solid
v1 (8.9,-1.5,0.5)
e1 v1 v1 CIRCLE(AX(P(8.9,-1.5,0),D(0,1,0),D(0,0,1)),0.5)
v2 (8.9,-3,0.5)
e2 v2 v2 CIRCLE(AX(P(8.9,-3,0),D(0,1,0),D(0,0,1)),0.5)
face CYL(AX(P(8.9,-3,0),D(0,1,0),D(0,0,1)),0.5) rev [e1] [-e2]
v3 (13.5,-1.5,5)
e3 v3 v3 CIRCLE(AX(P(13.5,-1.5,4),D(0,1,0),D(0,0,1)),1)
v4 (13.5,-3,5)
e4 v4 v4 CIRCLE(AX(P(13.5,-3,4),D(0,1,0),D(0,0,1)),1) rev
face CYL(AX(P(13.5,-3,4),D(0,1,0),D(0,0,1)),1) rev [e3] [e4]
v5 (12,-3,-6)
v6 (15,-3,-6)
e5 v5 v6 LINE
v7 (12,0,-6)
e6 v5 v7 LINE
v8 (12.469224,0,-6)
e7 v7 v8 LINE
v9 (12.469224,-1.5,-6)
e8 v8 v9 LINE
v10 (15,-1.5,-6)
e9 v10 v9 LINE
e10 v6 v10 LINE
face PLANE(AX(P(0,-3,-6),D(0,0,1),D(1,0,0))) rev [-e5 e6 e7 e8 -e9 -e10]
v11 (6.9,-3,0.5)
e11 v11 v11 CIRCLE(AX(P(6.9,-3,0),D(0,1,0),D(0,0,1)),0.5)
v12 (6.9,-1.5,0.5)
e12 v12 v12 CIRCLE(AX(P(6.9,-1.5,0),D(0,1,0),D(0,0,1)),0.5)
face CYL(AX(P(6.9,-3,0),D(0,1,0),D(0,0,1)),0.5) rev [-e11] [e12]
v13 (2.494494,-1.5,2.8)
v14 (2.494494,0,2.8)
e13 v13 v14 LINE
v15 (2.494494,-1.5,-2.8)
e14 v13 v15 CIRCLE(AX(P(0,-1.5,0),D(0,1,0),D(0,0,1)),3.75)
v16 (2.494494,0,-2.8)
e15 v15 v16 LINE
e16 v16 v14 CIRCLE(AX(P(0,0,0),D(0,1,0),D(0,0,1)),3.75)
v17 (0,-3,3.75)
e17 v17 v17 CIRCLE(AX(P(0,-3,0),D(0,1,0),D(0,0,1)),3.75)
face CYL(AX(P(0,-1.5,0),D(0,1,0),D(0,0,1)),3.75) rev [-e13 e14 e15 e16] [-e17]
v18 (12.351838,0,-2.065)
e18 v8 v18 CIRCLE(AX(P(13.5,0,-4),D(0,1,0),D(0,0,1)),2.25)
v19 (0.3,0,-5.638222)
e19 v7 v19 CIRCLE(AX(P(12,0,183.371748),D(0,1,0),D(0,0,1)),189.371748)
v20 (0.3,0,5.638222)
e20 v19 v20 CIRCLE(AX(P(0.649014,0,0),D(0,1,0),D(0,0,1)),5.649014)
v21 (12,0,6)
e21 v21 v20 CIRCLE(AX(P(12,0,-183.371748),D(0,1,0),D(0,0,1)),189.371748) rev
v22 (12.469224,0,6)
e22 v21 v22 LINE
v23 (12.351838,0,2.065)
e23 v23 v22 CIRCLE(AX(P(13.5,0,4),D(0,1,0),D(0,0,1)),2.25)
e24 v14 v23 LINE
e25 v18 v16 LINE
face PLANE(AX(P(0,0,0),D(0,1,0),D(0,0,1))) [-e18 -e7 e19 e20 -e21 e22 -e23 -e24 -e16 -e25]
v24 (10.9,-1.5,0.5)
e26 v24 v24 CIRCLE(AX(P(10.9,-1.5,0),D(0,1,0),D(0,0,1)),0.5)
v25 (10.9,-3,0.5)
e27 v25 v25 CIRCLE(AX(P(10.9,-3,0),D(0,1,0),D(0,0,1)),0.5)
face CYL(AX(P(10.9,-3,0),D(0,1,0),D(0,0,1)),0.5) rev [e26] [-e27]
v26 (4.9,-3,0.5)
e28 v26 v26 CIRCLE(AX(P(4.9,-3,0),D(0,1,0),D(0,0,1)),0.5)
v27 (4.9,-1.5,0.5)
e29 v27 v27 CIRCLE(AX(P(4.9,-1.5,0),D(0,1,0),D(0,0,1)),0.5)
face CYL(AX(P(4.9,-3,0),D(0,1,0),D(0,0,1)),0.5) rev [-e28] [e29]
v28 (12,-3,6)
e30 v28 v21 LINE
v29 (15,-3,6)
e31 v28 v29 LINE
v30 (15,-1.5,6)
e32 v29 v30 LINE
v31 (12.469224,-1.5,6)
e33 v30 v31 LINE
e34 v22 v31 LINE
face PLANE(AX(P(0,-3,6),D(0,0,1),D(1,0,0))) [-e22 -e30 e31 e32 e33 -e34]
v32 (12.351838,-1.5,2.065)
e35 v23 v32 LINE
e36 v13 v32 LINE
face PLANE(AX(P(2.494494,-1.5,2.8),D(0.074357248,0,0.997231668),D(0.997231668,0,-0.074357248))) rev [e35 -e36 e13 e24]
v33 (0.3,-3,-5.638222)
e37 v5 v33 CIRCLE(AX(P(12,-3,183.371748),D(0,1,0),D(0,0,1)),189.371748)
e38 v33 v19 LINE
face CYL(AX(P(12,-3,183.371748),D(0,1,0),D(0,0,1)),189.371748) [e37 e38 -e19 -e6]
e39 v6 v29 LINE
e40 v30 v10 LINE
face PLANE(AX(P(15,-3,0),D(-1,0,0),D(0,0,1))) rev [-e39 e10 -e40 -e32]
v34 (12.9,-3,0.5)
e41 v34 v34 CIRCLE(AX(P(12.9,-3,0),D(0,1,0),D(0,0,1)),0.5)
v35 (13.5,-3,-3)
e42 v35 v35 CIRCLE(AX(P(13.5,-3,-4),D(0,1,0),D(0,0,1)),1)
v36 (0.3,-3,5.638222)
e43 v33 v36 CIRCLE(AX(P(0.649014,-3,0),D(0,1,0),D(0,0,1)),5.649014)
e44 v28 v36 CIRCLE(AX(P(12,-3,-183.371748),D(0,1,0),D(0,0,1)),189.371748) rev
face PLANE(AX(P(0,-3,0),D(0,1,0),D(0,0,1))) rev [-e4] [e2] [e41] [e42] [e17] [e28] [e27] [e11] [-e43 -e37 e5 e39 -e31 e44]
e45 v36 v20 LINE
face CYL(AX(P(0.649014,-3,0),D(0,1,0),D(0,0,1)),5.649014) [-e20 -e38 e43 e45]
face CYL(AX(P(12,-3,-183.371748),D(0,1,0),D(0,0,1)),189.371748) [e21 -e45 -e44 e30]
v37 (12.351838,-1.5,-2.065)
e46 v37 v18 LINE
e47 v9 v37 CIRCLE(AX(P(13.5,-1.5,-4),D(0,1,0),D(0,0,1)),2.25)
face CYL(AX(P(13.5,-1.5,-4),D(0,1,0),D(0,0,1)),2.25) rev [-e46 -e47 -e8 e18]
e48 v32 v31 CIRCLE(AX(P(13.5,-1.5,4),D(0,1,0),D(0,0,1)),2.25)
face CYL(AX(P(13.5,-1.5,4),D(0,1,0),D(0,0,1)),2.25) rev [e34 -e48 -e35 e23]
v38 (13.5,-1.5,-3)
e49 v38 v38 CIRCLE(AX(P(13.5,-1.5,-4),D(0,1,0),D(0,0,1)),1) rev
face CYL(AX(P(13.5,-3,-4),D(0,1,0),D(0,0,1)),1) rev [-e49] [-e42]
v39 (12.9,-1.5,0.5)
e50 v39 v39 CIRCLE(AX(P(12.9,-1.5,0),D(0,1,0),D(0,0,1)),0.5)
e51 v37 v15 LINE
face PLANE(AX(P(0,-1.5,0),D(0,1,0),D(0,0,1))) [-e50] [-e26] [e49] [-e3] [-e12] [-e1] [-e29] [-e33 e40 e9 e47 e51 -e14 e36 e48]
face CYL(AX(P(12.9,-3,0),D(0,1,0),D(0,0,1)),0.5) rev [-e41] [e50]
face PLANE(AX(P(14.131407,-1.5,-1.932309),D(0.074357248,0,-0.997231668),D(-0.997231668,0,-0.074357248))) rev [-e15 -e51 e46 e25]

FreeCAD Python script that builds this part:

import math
import FreeCAD as App
import Part
import Sketcher
from FreeCAD import Vector

doc = App.newDocument("Part")
body = doc.addObject("PartDesign::Body", "Body")

sketch1 = body.newObject("Sketcher::SketchObject", "Sketch")
sketch1.AttachmentSupport = (doc.getObject("XZ_Plane"), [""])
sketch1.MapMode = "FlatFace"
sketch1.addGeometry([
    Part.LineSegment(Vector(15, -6, 0), Vector(12, -6, 0)),
    Part.ArcOfCircle(Part.Circle(Vector(12, 183.371748, 0), Vector(0, 0, 1), 189.371748), math.radians(-93.542175), math.radians(-90)),
    Part.ArcOfCircle(Part.Circle(Vector(0.649014, 0, 0), Vector(0, 0, 1), 5.649014), math.radians(93.542175), math.radians(266.457825)),
    Part.ArcOfCircle(Part.Circle(Vector(12, -183.371748, 0), Vector(0, 0, 1), 189.371748), math.radians(90), math.radians(93.542175)),
    Part.LineSegment(Vector(12, 6, 0), Vector(15, 6, 0)),
    Part.LineSegment(Vector(15, 6, 0), Vector(15, -6, 0)),
    Part.Circle(Vector(13.5, 4, 0), Vector(0, 0, 1), 1),
    Part.Circle(Vector(0, 0, 0), Vector(0, 0, 1), 2.35),
    Part.Circle(Vector(13.5, -4, 0), Vector(0, 0, 1), 1),
], False)
sketch1.addConstraint([
    Sketcher.Constraint("Tangent", 0, 2, 1, 2),
    Sketcher.Constraint("Tangent", 1, 1, 2, 2),
    Sketcher.Constraint("Tangent", 2, 1, 3, 2),
    Sketcher.Constraint("Tangent", 3, 1, 4, 1),
    Sketcher.Constraint("Coincident", 4, 2, 5, 1),
    Sketcher.Constraint("Coincident", 5, 2, 0, 1),
    Sketcher.Constraint("Horizontal", 0),
    Sketcher.Constraint("Horizontal", 4),
    Sketcher.Constraint("Vertical", 5),
    Sketcher.Constraint("Coincident", 7, 3, -1, 1),
    Sketcher.Constraint("Equal", 1, 3),
    Sketcher.Constraint("Equal", 6, 8),
    Sketcher.Constraint("Symmetric", 1, 3, 3, 3, -1),
    Sketcher.Constraint("Symmetric", 6, 3, 8, 3, -1),
    Sketcher.Constraint("Diameter", 6, 2.0),
    Sketcher.Constraint("Diameter", 7, 4.7),
    Sketcher.Constraint("DistanceX", 0, 2, 0, 1, 3.0),
    Sketcher.Constraint("DistanceY", 5, 2, 5, 1, 12.0),
    Sketcher.Constraint("DistanceX", -1, 1, 1, 3, 12.0),
    Sketcher.Constraint("DistanceY", -1, 1, 6, 3, 4.0),
    Sketcher.Constraint("DistanceX", -1, 1, 6, 3, 13.5),
    Sketcher.Constraint("DistanceX", -1, 1, 1, 1, 0.3),
    Sketcher.Constraint("Radius", 1, 189.371748),
])
pad1 = body.newObject("PartDesign::Pad", "Pad")
pad1.Profile = sketch1
pad1.Length = 3

sketch2 = body.newObject("Sketcher::SketchObject", "Sketch001")
sketch2.AttachmentSupport = (doc.getObject("XZ_Plane"), [""])
sketch2.MapMode = "FlatFace"
sketch2.addGeometry([
    Part.LineSegment(Vector(2.494494, 2.8, 0), Vector(14.131407, 1.932309, 0)),
    Part.BSplineCurve([Vector(14.131407, 1.932309, 0), Vector(14.497286, 1.904835, 0), Vector(14.827492, 1.746053, 0), Vector(15.157338, 1.587443, 0), Vector(15.407155, 1.318585, 0), Vector(15.656201, 1.050556, 0), Vector(15.790562, 0.709169, 0), Vector(15.924904, 0.367831, 0), Vector(15.925, 0, 0), Vector(15.925096, -0.366175, 0), Vector(15.791018, -0.708008, 0), Vector(15.657374, -1.048734, 0), Vector(15.407836, -1.317851, 0), Vector(15.159067, -1.586138, 0), Vector(14.828616, -1.745511, 0), Vector(14.498449, -1.904748, 0), Vector(14.131407, -1.932309, 0)], [3, 2, 2, 2, 2, 2, 2, 2, 3], [0, 0.125, 0.25, 0.375, 0.5, 0.625, 0.75, 0.875, 1], False, 2, [1, 1, 1, 1, 1, 1, 1, 1, 1, 1, 1, 1, 1, 1, 1, 1, 1], False),
    Part.LineSegment(Vector(14.131407, -1.932309, 0), Vector(2.494494, -2.8, 0)),
    Part.ArcOfCircle(Part.Circle(Vector(0, 0, 0), Vector(0, 0, 1), 3.75), math.radians(48.302453), math.radians(311.697547)),
], False)
sketch2.addConstraint([
    Sketcher.Constraint("Block", 1),
    Sketcher.Constraint("Coincident", 0, 2, 1, 1),
    Sketcher.Constraint("Coincident", 1, 2, 2, 1),
    Sketcher.Constraint("Coincident", 2, 2, 3, 2),
    Sketcher.Constraint("Coincident", 3, 1, 0, 1),
    Sketcher.Constraint("Coincident", 3, 3, -1, 1),
    Sketcher.Constraint("Vertical", 2, 2, 3, 1),
    Sketcher.Constraint("Radius", 3, 3.75),
    Sketcher.Constraint("DistanceY", 2, 2, -1, 1, 2.8),
])
pocket1 = body.newObject("PartDesign::Pocket", "Pocket")
pocket1.Profile = sketch2
pocket1.Length = 1.5
pocket1.Reversed = True

sketch3 = body.newObject("Sketcher::SketchObject", "Sketch002")
sketch3.AttachmentSupport = (doc.getObject("XZ_Plane"), [""])
sketch3.MapMode = "FlatFace"
sketch3.AttachmentOffset = App.Placement(Vector(0, 0, 1.5), App.Rotation())
sketch3.addGeometry([
    Part.Circle(Vector(4.9, 0, 0), Vector(0, 0, 1), 0.5),
    Part.Circle(Vector(6.9, 0, 0), Vector(0, 0, 1), 0.5),
    Part.Circle(Vector(8.9, 0, 0), Vector(0, 0, 1), 0.5),
    Part.Circle(Vector(10.9, 0, 0), Vector(0, 0, 1), 0.5),
    Part.Circle(Vector(12.9, 0, 0), Vector(0, 0, 1), 0.5),
    Part.Circle(Vector(0, 0, 0), Vector(0, 0, 1), 3.75),
], False)
sketch3.addConstraint([
    Sketcher.Constraint("Coincident", 5, 3, -1, 1),
    Sketcher.Constraint("Equal", 0, 1),
    Sketcher.Constraint("Equal", 1, 2),
    Sketcher.Constraint("Equal", 2, 3),
    Sketcher.Constraint("Equal", 3, 4),
    Sketcher.Constraint("PointOnObject", 0, 3, -1),
    Sketcher.Constraint("PointOnObject", 1, 3, -1),
    Sketcher.Constraint("PointOnObject", 2, 3, -1),
    Sketcher.Constraint("PointOnObject", 3, 3, -1),
    Sketcher.Constraint("PointOnObject", 4, 3, -1),
    Sketcher.Constraint("Diameter", 0, 1.0),
    Sketcher.Constraint("Diameter", 5, 7.5),
    Sketcher.Constraint("DistanceX", 0, 3, 1, 3, 2.0),
    Sketcher.Constraint("DistanceX", 1, 3, 2, 3, 2.0),
    Sketcher.Constraint("DistanceX", 2, 3, 3, 3, 2.0),
    Sketcher.Constraint("DistanceX", 3, 3, 4, 3, 2.0),
    Sketcher.Constraint("DistanceX", -1, 1, 0, 3, 4.9),
])
pocket2 = body.newObject("PartDesign::Pocket", "Pocket001")
pocket2.Profile = sketch3
pocket2.Type = "ThroughAll"
pocket2.Reversed = True

sketch4 = body.newObject("Sketcher::SketchObject", "Sketch003")
sketch4.AttachmentSupport = (doc.getObject("XZ_Plane"), [""])
sketch4.MapMode = "FlatFace"
sketch4.addGeometry([
    Part.LineSegment(Vector(13.5, -1.75, 0), Vector(13.5, 1.75, 0)),
    Part.ArcOfCircle(Part.Circle(Vector(13.5, 4, 0), Vector(0, 0, 1), 2.25), math.radians(90), math.radians(270)),
    Part.LineSegment(Vector(13.5, 6.25, 0), Vector(13.5, 9.017851, 0)),
    Part.LineSegment(Vector(13.5, 9.017851, 0), Vector(16.575189, 9.017851, 0)),
    Part.LineSegment(Vector(16.575189, 9.017851, 0), Vector(16.575189, -7.352249, 0)),
    Part.LineSegment(Vector(16.575189, -7.352249, 0), Vector(13.5, -7.352249, 0)),
    Part.LineSegment(Vector(13.5, -7.352249, 0), Vector(13.5, -6.25, 0)),
    Part.ArcOfCircle(Part.Circle(Vector(13.5, -4, 0), Vector(0, 0, 1), 2.25), math.radians(90), math.radians(270)),
], False)
sketch4.addConstraint([
    Sketcher.Constraint("Coincident", 0, 2, 1, 2),
    Sketcher.Constraint("Coincident", 1, 1, 2, 1),
    Sketcher.Constraint("Coincident", 2, 2, 3, 1),
    Sketcher.Constraint("Coincident", 3, 2, 4, 1),
    Sketcher.Constraint("Coincident", 4, 2, 5, 1),
    Sketcher.Constraint("Coincident", 5, 2, 6, 1),
    Sketcher.Constraint("Coincident", 6, 2, 7, 2),
    Sketcher.Constraint("Coincident", 7, 1, 0, 1),
    Sketcher.Constraint("Vertical", 0),
    Sketcher.Constraint("Vertical", 2),
    Sketcher.Constraint("Horizontal", 3),
    Sketcher.Constraint("Vertical", 4),
    Sketcher.Constraint("Horizontal", 5),
    Sketcher.Constraint("Vertical", 6),
    Sketcher.Constraint("Equal", 1, 7),
    Sketcher.Constraint("Symmetric", 1, 3, 7, 3, -1),
    Sketcher.Constraint("Vertical", 7, 3, 0, 2),
    Sketcher.Constraint("Vertical", 0, 2, 1, 1),
    Sketcher.Constraint("Vertical", 2, 2, 5, 2),
    Sketcher.Constraint("Radius", 1, 2.25),
    Sketcher.Constraint("DistanceY", 0, 1, 0, 2, 3.5),
    Sketcher.Constraint("DistanceX", -1, 1, 1, 3, 13.5),
    Sketcher.Constraint("DistanceY", 4, 2, 4, 1, 16.370101),
    Sketcher.Constraint("DistanceX", 3, 1, 3, 2, 3.075189),
    Sketcher.Constraint("DistanceY", 2, 1, 2, 2, 2.767851),
])
pocket3 = body.newObject("PartDesign::Pocket", "Pocket002")
pocket3.Profile = sketch4
pocket3.Length = 1.5
pocket3.Reversed = True

doc.recompute()
